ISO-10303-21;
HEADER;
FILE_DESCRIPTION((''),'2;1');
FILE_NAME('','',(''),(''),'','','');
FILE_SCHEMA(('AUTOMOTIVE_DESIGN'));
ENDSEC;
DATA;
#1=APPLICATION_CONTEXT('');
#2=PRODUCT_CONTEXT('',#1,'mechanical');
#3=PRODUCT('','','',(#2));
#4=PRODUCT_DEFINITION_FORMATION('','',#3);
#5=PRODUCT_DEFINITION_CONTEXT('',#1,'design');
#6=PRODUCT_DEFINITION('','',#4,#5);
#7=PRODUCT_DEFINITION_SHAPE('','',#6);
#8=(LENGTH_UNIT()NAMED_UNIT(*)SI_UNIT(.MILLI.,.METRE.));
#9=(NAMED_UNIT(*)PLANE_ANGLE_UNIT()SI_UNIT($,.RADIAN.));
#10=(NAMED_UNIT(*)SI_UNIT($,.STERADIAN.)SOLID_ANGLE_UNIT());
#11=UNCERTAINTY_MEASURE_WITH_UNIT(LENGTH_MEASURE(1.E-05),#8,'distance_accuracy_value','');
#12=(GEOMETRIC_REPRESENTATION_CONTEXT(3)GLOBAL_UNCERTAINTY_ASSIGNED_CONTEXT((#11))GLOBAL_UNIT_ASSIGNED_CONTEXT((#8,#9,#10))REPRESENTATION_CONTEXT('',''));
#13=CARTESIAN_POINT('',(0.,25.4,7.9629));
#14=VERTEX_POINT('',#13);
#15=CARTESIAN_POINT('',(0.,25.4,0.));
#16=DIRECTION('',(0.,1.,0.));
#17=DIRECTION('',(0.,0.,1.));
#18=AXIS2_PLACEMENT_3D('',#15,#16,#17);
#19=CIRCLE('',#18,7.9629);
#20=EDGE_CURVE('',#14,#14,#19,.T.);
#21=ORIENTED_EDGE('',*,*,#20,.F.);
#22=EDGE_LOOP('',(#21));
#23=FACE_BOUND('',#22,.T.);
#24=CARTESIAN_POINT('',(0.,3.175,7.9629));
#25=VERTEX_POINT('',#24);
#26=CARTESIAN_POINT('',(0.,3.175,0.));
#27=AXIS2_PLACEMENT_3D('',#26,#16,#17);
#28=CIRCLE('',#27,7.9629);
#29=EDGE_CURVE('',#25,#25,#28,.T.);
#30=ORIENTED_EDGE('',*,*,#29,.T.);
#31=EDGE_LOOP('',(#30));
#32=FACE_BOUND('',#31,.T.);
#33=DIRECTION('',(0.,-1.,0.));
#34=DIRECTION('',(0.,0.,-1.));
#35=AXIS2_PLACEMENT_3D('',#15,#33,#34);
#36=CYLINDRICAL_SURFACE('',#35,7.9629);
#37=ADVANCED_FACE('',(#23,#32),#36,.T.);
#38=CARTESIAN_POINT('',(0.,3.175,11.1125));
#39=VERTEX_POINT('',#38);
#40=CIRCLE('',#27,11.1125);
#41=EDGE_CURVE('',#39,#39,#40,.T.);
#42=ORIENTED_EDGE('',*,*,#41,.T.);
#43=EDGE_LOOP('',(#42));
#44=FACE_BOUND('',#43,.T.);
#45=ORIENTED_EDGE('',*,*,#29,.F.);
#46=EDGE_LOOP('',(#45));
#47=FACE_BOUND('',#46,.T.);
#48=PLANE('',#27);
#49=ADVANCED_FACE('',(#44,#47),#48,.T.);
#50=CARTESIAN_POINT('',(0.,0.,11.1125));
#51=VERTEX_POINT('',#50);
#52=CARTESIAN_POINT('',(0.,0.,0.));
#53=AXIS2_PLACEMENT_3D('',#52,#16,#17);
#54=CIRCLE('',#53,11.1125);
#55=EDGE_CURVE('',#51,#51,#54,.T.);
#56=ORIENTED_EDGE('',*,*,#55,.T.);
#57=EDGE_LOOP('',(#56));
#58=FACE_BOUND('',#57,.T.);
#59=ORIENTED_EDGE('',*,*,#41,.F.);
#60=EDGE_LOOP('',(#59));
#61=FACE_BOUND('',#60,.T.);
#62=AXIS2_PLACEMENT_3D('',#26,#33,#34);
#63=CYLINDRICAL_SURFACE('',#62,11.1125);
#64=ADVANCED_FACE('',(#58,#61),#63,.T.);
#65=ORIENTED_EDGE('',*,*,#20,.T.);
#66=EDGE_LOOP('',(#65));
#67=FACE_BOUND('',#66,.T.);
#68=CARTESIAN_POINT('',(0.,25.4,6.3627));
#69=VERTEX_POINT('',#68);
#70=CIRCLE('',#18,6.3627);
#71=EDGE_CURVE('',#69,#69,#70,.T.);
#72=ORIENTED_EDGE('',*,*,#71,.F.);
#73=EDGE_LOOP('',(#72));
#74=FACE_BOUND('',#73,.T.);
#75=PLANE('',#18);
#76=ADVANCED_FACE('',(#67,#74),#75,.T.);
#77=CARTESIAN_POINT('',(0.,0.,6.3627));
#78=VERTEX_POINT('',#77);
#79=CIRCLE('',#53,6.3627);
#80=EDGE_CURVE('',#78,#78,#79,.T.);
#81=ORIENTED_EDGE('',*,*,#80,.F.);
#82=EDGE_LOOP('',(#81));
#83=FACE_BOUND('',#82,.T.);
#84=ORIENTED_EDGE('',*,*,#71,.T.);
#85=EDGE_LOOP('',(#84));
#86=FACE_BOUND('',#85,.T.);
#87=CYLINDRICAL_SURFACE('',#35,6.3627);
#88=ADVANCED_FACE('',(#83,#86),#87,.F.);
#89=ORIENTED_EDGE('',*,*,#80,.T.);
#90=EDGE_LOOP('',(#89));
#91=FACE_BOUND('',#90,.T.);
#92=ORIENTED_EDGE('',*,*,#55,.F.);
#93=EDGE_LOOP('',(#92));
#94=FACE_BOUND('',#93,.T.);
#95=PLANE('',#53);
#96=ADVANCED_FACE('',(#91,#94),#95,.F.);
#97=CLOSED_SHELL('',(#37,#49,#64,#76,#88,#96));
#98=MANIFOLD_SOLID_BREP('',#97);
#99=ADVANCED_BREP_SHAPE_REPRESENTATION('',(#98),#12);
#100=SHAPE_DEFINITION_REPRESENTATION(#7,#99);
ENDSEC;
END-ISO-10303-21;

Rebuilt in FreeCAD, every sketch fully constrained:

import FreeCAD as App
import Part
import Sketcher
Q = App.Units.Quantity

doc = App.newDocument("Part")
body = doc.addObject("PartDesign::Body", "Body")

# Sketch on XZ plane
sketch1 = body.newObject("Sketcher::SketchObject", "Sketch")
sketch1.AttachmentSupport = (doc.getObject("XZ_Plane"), [""])
sketch1.MapMode = "FlatFace"
sketch1.addGeometry([
    Part.Circle(App.Vector(0, 0, 0), App.Vector(0, 0, 1), 8),
    Part.Circle(App.Vector(0, 0, 0), App.Vector(0, 0, 1), 6),
], False)
sketch1.addConstraint([
    Sketcher.Constraint("Coincident", 0, 3, -1, 1),
    Sketcher.Constraint("Coincident", 1, 3, -1, 1),
    Sketcher.Constraint("Diameter", 0, Q("0.627 in")),
    Sketcher.Constraint("Diameter", 1, Q("0.501 in")),
])
pad1 = body.newObject("PartDesign::Pad", "Pad")
pad1.Profile = sketch1
pad1.Length = Q("1 in")
pad1.Reversed = True

# Sketch on XZ plane
sketch2 = body.newObject("Sketcher::SketchObject", "Sketch001")
sketch2.AttachmentSupport = (doc.getObject("XZ_Plane"), [""])
sketch2.MapMode = "FlatFace"
sketch2.addGeometry([
    Part.Circle(App.Vector(0, 0, 0), App.Vector(0, 0, 1), 11),
    Part.Circle(App.Vector(0, 0, 0), App.Vector(0, 0, 1), 8),
], False)
sketch2.addConstraint([
    Sketcher.Constraint("Coincident", 0, 3, -1, 1),
    Sketcher.Constraint("Coincident", 1, 3, -1, 1),
    Sketcher.Constraint("Diameter", 0, Q("0.875 in")),
    Sketcher.Constraint("Diameter", 1, Q("0.627 in")),
])
pad2 = body.newObject("PartDesign::Pad", "Pad001")
pad2.Profile = sketch2
pad2.Length = Q("0.125 in")
pad2.Reversed = True

doc.recompute()
